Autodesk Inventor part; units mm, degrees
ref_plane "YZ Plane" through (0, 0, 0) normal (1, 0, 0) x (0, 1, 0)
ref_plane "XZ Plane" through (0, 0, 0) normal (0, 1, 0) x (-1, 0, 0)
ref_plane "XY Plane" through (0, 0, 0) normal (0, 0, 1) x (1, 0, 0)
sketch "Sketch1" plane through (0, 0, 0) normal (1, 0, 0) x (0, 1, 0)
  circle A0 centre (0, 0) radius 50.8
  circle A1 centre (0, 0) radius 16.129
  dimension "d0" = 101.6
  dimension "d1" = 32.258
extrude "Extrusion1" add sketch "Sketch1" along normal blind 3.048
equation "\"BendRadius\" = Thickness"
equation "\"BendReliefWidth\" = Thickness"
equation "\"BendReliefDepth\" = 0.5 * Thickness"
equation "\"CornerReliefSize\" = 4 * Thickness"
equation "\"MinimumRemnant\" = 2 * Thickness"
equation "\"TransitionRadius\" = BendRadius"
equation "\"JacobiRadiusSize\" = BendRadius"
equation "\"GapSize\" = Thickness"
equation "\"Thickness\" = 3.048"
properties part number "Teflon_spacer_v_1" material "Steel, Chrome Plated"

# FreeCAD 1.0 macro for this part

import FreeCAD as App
import Part
import Sketcher
Q = App.Units.Quantity

doc = App.newDocument("Part")
body = doc.addObject("PartDesign::Body", "Body")

# Sketch on YZ plane
sketch1 = body.newObject("Sketcher::SketchObject", "Sketch")
sketch1.AttachmentSupport = (doc.getObject("YZ_Plane"), [""])
sketch1.MapMode = "FlatFace"
sketch1.addGeometry([
    Part.Circle(App.Vector(0, 0, 0), App.Vector(0, 0, 1), 51),
    Part.Circle(App.Vector(0, 0, 0), App.Vector(0, 0, 1), 16),
], False)
sketch1.addConstraint([
    Sketcher.Constraint("Coincident", 0, 3, -1, 1),
    Sketcher.Constraint("Coincident", 1, 3, -1, 1),
    Sketcher.Constraint("Diameter", 0, Q("4 in")),
    Sketcher.Constraint("Diameter", 1, Q("1.27 in")),
])
pad1 = body.newObject("PartDesign::Pad", "Pad")
pad1.Profile = sketch1
pad1.Length = Q("0.12 in")

doc.recompute()
